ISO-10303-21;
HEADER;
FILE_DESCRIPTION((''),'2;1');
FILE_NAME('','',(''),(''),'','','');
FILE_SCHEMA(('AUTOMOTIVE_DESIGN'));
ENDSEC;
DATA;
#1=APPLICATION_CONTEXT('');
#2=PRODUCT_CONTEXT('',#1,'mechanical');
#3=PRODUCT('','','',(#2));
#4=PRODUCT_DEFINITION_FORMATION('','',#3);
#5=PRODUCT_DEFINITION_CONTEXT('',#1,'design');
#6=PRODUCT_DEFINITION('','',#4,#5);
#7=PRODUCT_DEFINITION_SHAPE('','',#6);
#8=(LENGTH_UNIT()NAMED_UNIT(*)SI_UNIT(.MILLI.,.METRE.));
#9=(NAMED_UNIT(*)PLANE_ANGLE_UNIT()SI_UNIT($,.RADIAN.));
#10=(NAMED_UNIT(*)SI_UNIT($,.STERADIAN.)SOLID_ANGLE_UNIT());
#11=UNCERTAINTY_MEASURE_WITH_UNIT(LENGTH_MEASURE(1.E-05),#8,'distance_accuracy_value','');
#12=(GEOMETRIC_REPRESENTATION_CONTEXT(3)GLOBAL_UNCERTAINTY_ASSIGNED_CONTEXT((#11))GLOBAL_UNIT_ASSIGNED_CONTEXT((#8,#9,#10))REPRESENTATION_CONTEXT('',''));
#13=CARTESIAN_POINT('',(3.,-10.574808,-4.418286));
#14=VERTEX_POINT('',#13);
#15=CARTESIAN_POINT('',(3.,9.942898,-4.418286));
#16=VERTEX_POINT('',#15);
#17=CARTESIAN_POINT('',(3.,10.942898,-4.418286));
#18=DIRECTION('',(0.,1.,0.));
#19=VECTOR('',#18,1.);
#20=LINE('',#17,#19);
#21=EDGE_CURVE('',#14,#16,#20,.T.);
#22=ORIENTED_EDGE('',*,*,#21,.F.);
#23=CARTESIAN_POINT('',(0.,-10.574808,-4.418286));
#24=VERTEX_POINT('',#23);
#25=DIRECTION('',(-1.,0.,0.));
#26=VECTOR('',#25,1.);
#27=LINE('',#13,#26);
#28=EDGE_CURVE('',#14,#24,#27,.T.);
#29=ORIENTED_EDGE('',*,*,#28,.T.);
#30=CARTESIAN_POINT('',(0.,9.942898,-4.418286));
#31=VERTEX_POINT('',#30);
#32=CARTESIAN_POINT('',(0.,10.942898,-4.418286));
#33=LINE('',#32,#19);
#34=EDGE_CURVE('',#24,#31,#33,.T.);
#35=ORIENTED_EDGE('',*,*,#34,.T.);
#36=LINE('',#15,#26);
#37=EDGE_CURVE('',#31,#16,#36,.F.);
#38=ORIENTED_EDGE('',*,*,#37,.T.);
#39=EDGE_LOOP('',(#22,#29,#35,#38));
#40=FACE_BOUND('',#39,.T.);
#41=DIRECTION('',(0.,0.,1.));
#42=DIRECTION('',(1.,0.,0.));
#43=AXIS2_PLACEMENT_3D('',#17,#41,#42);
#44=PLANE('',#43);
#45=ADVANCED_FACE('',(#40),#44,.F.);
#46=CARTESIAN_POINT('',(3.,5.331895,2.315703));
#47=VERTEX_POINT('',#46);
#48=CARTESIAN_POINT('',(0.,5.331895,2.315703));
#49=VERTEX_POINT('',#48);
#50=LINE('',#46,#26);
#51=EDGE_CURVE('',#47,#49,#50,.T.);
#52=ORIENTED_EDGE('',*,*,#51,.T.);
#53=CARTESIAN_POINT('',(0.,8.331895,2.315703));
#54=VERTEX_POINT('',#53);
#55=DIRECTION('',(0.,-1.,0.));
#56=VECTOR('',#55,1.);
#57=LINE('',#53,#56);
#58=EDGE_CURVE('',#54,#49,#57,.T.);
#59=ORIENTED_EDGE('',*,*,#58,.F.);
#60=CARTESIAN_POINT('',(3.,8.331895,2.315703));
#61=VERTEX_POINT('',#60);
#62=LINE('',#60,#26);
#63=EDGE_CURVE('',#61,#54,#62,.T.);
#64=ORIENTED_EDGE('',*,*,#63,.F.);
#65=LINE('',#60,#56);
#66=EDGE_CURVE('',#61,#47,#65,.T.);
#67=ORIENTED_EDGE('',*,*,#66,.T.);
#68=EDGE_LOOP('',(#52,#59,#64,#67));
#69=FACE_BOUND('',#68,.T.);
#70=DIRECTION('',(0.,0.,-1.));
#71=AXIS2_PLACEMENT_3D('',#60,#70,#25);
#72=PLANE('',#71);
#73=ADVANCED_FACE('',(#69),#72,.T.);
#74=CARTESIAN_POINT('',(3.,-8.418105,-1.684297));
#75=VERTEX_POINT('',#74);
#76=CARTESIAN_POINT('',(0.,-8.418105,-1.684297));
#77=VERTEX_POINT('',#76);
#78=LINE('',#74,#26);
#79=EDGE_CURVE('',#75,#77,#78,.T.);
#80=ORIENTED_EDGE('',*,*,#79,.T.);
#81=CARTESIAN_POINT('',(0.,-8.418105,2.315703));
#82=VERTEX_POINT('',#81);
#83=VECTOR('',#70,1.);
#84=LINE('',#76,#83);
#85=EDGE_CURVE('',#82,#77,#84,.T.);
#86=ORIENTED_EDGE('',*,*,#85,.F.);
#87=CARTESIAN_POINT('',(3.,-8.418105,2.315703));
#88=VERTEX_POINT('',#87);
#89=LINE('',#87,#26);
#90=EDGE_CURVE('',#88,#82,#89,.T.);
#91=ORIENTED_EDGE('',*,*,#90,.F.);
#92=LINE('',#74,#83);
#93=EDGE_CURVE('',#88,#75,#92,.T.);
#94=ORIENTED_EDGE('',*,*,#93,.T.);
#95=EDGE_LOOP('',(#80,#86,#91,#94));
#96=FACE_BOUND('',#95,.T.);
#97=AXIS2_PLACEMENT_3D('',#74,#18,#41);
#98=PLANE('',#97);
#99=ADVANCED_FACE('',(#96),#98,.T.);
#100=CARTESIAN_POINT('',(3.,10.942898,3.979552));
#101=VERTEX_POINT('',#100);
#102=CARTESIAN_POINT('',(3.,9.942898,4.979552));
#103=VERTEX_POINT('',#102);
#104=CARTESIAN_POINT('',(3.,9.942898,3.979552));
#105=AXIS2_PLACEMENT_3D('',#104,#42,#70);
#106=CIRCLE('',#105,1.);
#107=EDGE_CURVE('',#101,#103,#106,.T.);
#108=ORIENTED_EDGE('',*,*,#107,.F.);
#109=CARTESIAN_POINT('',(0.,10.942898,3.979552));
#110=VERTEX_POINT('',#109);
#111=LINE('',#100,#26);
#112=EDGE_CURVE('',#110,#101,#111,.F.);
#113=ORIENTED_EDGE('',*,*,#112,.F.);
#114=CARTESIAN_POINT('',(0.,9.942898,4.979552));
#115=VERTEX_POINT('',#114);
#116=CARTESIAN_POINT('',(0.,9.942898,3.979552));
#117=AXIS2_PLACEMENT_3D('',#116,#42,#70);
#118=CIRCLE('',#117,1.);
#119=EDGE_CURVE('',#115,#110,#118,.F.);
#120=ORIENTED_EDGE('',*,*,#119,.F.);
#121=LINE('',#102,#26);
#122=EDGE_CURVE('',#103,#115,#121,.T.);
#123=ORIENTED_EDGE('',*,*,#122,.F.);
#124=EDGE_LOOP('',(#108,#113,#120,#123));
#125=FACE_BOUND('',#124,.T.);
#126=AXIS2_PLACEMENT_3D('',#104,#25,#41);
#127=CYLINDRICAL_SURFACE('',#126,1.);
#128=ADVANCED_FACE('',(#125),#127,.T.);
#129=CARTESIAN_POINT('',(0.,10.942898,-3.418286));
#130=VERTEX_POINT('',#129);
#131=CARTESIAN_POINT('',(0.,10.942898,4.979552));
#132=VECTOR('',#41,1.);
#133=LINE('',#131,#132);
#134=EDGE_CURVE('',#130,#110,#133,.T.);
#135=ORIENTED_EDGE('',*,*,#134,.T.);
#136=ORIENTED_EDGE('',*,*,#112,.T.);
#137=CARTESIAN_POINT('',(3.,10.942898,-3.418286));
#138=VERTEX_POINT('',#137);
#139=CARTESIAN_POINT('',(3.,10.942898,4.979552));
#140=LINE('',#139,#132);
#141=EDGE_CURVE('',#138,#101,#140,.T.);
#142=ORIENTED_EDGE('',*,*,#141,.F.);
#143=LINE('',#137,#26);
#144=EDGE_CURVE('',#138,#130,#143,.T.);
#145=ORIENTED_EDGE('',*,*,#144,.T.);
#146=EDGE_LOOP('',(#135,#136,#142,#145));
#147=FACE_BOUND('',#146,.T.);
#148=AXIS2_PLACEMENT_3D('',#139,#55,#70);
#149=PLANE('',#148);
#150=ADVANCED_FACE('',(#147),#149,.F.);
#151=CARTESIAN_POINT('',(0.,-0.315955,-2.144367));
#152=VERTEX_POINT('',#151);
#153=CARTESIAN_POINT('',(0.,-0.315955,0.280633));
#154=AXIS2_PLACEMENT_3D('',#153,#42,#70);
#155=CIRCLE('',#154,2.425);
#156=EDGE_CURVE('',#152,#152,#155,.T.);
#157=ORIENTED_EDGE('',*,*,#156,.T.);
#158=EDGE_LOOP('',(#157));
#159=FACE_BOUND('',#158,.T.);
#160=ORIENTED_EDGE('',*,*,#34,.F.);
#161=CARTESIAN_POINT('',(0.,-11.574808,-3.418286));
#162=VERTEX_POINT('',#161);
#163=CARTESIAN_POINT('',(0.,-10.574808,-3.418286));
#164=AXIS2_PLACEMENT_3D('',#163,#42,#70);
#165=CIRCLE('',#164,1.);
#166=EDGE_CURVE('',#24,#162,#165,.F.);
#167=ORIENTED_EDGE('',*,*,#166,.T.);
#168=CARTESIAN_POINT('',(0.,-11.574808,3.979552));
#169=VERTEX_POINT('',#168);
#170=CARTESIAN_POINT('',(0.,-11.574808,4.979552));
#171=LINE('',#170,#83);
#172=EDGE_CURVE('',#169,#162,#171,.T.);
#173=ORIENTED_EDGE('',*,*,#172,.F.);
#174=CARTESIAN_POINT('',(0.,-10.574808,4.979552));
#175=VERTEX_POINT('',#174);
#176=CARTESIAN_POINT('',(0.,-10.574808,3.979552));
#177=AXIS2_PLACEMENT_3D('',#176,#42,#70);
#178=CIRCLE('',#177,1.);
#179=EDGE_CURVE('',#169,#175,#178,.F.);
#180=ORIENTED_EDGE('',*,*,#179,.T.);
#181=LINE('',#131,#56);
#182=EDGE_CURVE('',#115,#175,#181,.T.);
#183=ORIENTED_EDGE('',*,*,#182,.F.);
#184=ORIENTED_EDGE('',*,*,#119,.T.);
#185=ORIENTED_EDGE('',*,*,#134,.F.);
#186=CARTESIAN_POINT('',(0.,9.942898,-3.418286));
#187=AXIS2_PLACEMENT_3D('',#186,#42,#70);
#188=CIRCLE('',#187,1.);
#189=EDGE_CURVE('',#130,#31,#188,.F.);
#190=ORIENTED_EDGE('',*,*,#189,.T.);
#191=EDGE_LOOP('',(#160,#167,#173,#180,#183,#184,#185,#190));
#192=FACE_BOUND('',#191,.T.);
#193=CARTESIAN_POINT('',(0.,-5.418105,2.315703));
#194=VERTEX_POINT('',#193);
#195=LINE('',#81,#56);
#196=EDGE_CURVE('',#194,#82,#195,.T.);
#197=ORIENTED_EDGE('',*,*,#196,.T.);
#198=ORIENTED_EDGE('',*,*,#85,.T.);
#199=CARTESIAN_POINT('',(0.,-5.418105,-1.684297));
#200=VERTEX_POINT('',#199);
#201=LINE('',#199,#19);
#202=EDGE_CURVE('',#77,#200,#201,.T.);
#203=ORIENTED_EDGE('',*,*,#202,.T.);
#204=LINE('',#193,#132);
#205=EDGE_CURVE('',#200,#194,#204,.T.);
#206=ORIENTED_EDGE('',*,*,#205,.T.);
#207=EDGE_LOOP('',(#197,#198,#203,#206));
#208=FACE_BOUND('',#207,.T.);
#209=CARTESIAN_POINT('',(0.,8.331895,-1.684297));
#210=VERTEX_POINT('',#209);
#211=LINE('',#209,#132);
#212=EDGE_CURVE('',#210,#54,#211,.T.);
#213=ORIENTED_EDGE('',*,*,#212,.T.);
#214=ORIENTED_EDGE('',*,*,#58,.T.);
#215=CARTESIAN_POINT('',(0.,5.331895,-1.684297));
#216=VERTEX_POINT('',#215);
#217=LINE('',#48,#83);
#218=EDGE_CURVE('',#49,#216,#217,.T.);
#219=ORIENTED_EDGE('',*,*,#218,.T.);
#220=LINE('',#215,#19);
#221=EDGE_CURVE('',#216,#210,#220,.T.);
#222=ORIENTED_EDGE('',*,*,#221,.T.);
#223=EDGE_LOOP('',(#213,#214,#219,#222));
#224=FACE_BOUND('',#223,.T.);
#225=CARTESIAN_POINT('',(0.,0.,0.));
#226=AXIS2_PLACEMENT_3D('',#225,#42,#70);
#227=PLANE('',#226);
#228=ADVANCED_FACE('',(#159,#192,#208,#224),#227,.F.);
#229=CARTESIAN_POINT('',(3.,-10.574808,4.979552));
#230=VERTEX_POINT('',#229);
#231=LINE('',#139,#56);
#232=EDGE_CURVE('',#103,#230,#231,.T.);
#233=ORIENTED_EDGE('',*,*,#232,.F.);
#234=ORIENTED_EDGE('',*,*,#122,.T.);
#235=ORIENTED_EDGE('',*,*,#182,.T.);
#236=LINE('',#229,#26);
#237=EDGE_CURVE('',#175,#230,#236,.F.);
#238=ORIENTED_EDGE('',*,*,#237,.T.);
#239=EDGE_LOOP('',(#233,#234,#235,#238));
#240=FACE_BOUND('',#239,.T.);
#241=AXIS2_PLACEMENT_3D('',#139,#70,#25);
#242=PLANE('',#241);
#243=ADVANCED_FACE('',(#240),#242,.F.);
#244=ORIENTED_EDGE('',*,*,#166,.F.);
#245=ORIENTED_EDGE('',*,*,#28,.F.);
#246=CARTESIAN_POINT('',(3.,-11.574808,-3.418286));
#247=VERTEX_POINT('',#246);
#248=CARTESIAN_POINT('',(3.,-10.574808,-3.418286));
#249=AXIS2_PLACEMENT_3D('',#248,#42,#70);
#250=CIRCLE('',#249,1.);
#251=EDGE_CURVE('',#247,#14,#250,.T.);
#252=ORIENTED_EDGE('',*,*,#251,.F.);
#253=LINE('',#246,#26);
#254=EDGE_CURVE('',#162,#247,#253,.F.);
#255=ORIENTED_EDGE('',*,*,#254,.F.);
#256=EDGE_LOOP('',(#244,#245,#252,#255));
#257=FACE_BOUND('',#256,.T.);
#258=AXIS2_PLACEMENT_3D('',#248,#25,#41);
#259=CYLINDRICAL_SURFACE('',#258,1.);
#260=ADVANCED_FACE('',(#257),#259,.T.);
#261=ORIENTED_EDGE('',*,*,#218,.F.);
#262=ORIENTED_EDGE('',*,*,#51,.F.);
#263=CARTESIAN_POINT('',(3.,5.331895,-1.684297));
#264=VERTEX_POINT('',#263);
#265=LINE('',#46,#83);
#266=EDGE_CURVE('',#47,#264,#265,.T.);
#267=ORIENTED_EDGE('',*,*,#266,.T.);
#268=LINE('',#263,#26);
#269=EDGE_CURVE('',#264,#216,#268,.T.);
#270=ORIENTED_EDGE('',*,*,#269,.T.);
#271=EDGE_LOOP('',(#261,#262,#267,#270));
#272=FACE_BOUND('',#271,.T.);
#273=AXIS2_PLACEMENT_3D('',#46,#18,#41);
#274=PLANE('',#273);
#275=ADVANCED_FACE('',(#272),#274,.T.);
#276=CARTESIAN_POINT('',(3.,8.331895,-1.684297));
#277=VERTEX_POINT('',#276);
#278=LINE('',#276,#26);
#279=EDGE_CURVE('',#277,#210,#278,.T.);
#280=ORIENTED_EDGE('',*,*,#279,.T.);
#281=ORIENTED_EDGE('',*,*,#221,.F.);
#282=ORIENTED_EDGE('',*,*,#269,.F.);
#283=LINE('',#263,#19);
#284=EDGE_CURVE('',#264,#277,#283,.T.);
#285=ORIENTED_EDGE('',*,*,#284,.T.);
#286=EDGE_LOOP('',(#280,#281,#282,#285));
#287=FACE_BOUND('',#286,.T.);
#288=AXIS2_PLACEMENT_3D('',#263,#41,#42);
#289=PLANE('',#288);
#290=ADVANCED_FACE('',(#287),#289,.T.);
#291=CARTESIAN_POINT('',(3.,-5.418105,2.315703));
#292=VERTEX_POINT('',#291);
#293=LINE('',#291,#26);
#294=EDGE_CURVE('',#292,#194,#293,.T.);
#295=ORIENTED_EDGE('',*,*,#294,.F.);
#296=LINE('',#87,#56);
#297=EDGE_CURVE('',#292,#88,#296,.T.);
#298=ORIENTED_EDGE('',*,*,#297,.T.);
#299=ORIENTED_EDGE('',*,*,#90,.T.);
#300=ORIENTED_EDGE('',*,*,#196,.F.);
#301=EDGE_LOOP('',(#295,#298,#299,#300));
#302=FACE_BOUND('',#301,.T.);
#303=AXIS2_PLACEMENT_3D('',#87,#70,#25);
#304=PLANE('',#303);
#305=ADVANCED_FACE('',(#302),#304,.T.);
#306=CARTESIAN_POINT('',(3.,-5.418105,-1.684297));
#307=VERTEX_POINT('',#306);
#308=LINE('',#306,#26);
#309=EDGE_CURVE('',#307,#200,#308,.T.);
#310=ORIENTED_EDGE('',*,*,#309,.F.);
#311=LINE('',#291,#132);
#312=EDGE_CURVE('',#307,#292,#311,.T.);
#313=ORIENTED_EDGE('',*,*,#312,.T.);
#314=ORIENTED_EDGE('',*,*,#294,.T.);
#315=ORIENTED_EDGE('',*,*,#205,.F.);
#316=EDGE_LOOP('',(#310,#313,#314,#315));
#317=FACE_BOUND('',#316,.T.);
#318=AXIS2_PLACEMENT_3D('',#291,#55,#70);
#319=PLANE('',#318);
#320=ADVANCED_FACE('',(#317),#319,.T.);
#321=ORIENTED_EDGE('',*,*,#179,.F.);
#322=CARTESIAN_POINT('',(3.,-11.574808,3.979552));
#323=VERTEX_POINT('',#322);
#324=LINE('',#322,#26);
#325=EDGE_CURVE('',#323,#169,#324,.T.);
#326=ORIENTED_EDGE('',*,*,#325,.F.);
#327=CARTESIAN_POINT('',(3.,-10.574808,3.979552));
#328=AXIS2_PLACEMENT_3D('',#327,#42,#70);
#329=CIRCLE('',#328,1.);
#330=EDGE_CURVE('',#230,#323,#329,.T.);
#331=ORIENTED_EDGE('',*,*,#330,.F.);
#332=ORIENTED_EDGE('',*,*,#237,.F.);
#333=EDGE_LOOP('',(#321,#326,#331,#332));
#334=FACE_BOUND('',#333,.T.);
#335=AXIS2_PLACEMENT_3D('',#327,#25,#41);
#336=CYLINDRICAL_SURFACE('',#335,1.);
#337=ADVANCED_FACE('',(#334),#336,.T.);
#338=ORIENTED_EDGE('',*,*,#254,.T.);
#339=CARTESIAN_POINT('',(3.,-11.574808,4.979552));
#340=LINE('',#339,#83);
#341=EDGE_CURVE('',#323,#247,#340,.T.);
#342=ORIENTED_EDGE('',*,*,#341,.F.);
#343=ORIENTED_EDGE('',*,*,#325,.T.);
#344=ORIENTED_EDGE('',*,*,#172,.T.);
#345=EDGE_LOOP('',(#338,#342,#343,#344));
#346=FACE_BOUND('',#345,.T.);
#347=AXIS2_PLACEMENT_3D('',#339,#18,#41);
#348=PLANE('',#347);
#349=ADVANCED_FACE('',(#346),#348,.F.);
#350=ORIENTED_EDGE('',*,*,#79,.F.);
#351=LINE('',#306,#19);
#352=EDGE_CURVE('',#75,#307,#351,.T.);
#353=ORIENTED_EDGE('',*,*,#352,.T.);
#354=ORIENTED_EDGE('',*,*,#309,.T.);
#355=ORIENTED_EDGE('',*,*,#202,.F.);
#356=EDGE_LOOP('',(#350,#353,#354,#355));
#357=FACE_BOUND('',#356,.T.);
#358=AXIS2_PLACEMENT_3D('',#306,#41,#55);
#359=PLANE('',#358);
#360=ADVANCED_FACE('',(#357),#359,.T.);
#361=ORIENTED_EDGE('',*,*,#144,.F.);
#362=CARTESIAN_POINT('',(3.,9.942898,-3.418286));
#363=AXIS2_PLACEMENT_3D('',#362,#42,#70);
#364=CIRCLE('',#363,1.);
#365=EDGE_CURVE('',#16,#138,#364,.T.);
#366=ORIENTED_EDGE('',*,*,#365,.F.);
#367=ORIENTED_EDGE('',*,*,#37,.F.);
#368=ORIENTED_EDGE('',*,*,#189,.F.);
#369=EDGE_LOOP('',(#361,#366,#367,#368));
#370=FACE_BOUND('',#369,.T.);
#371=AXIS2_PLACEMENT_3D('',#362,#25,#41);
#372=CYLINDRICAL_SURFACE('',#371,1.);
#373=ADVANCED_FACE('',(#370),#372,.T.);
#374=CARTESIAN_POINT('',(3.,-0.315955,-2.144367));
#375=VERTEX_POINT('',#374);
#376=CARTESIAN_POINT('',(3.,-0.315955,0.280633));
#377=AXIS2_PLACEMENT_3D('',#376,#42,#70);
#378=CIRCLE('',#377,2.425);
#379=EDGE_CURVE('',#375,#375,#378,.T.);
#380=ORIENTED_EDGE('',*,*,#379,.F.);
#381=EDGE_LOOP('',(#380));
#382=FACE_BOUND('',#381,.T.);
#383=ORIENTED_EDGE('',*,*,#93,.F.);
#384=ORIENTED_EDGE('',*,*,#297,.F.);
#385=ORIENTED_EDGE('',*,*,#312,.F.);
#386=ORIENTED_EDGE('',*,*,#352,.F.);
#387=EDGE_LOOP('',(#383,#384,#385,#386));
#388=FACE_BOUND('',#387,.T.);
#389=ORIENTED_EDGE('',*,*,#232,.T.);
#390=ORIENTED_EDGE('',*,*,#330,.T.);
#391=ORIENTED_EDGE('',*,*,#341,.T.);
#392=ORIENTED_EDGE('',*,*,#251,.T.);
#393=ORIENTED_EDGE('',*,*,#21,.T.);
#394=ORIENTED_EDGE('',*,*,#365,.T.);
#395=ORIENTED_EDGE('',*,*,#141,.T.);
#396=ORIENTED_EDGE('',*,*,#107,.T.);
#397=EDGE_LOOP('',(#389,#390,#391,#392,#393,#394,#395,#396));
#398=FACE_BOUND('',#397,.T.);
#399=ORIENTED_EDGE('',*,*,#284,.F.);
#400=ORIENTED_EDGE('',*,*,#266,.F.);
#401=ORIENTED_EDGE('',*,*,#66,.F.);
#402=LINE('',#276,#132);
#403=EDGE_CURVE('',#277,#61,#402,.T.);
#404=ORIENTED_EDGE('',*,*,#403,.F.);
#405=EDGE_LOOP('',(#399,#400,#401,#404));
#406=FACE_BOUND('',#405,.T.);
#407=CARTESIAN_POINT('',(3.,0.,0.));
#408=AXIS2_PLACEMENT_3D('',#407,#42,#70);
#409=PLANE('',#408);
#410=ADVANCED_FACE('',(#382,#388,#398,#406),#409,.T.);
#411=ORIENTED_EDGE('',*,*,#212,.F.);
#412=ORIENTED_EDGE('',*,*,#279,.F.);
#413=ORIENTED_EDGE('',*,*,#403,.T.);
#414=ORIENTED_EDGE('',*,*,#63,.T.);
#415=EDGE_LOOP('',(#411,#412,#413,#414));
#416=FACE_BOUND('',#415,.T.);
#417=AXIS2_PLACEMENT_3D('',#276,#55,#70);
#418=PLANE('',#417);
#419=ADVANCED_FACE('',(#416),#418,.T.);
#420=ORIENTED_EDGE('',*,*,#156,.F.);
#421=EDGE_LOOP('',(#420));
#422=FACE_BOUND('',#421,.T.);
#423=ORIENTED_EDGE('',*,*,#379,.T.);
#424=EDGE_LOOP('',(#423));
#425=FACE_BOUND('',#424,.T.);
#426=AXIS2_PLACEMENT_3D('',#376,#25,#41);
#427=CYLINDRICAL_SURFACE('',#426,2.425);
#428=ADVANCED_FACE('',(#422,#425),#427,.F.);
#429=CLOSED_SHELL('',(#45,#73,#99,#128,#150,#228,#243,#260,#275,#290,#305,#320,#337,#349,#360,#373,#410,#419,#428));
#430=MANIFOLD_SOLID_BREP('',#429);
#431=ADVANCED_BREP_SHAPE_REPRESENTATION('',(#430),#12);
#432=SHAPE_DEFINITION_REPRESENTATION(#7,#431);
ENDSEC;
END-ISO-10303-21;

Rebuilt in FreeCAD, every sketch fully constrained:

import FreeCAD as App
import Part
import Sketcher
from FreeCAD import Vector


def edges_at(feature, points):
    """Names of the edges that pass closest to the given points."""
    edges = feature.Shape.Edges
    near = lambda p: min(range(len(edges)), key=lambda i: edges[i].distToShape(Part.Vertex(*p))[0])
    return sorted({f"Edge{near(p) + 1}" for p in points})


def add_polygon(sketch, points):
    """Adds a closed chain of lines whose ends are joined by coincident constraints."""
    first, n = sketch.GeometryCount, len(points)
    for a, b in zip(points, points[1:] + points[:1]):
        sketch.addGeometry(Part.LineSegment(App.Vector(*a, 0), App.Vector(*b, 0)), False)
    for i in range(n):
        sketch.addConstraint(Sketcher.Constraint("Coincident", first + i, 2, first + (i + 1) % n, 1))

doc = App.newDocument("Part")
body = doc.addObject("PartDesign::Body", "Body")

# Sketch on YZ plane
sketch1 = body.newObject("Sketcher::SketchObject", "Sketch")
sketch1.AttachmentSupport = (doc.getObject("YZ_Plane"), [""])
sketch1.MapMode = "FlatFace"
add_polygon(sketch1, [(10.9, 5), (-11.6, 5), (-11.6, -4.4), (10.9, -4.4)])  # lines 0-3
add_polygon(sketch1, [(-8.4, -1.7), (-8.4, 2.3), (-5.4, 2.3), (-5.4, -1.7)])  # lines 4-7
sketch1.addGeometry(Part.Circle(Vector(-0.3, 0.3, 0), Vector(0, 0, 1), 2.4), False)  # 8
add_polygon(sketch1, [(5.3, -1.7), (5.3, 2.3), (8.3, 2.3), (8.3, -1.7)])  # lines 9-12
sketch1.addConstraint(Sketcher.Constraint("Horizontal", 0))
sketch1.addConstraint(Sketcher.Constraint("Vertical", 1))
sketch1.addConstraint(Sketcher.Constraint("Horizontal", 2))
sketch1.addConstraint(Sketcher.Constraint("Vertical", 3))
sketch1.addConstraint(Sketcher.Constraint("Vertical", 4))
sketch1.addConstraint(Sketcher.Constraint("Horizontal", 5))
sketch1.addConstraint(Sketcher.Constraint("Vertical", 6))
sketch1.addConstraint(Sketcher.Constraint("Horizontal", 7))
sketch1.addConstraint(Sketcher.Constraint("Vertical", 9))
sketch1.addConstraint(Sketcher.Constraint("Horizontal", 10))
sketch1.addConstraint(Sketcher.Constraint("Vertical", 11))
sketch1.addConstraint(Sketcher.Constraint("Horizontal", 12))
sketch1.addConstraint(Sketcher.Constraint("Horizontal", 5, 2, 9, 2))
sketch1.addConstraint(Sketcher.Constraint("Horizontal", 7, 2, 11, 2))
sketch1.addConstraint(Sketcher.Constraint("Equal", 7, 10))
sketch1.addConstraint(Sketcher.Constraint("Diameter", 8, 4.85))
sketch1.addConstraint(Sketcher.Constraint("DistanceX", 5, 1, 5, 2, 3.0))
sketch1.addConstraint(Sketcher.Constraint("DistanceY", 4, 1, 4, 2, 4.0))
sketch1.addConstraint(Sketcher.Constraint("DistanceX", 5, 2, 9, 2, 10.75))
sketch1.addConstraint(Sketcher.Constraint("DistanceY", 1, 2, 1, 1, 9.397838))
sketch1.addConstraint(Sketcher.Constraint("DistanceX", 0, 2, 0, 1, 22.517706))
sketch1.addConstraint(Sketcher.Constraint("DistanceY", 8, 3, 0, 2, 4.698919))
sketch1.addConstraint(Sketcher.Constraint("DistanceY", 4, 2, 0, 2, 2.66385))
sketch1.addConstraint(Sketcher.Constraint("DistanceX", 4, 2, 8, 3, 8.10215))
sketch1.addConstraint(Sketcher.Constraint("DistanceX", 8, 3, -1, 1, 0.315955))
sketch1.addConstraint(Sketcher.Constraint("DistanceY", -1, 1, 8, 3, 0.280633))
sketch1.addConstraint(Sketcher.Constraint("DistanceX", 0, 2, -1, 1, 11.574808))
pad1 = body.newObject("PartDesign::Pad", "Pad")
pad1.Profile = sketch1
pad1.Length = 3
doc.recompute()

fillet = body.newObject("PartDesign::Fillet", "Fillet")
fillet.Base = (pad1, edges_at(pad1, [
    (1.5, 10.943, 4.98),
    (1.5, 10.943, -4.418),
    (1.5, -11.575, -4.418),
    (1.5, -11.575, 4.98),
]))
fillet.Radius = 1

doc.recompute()
